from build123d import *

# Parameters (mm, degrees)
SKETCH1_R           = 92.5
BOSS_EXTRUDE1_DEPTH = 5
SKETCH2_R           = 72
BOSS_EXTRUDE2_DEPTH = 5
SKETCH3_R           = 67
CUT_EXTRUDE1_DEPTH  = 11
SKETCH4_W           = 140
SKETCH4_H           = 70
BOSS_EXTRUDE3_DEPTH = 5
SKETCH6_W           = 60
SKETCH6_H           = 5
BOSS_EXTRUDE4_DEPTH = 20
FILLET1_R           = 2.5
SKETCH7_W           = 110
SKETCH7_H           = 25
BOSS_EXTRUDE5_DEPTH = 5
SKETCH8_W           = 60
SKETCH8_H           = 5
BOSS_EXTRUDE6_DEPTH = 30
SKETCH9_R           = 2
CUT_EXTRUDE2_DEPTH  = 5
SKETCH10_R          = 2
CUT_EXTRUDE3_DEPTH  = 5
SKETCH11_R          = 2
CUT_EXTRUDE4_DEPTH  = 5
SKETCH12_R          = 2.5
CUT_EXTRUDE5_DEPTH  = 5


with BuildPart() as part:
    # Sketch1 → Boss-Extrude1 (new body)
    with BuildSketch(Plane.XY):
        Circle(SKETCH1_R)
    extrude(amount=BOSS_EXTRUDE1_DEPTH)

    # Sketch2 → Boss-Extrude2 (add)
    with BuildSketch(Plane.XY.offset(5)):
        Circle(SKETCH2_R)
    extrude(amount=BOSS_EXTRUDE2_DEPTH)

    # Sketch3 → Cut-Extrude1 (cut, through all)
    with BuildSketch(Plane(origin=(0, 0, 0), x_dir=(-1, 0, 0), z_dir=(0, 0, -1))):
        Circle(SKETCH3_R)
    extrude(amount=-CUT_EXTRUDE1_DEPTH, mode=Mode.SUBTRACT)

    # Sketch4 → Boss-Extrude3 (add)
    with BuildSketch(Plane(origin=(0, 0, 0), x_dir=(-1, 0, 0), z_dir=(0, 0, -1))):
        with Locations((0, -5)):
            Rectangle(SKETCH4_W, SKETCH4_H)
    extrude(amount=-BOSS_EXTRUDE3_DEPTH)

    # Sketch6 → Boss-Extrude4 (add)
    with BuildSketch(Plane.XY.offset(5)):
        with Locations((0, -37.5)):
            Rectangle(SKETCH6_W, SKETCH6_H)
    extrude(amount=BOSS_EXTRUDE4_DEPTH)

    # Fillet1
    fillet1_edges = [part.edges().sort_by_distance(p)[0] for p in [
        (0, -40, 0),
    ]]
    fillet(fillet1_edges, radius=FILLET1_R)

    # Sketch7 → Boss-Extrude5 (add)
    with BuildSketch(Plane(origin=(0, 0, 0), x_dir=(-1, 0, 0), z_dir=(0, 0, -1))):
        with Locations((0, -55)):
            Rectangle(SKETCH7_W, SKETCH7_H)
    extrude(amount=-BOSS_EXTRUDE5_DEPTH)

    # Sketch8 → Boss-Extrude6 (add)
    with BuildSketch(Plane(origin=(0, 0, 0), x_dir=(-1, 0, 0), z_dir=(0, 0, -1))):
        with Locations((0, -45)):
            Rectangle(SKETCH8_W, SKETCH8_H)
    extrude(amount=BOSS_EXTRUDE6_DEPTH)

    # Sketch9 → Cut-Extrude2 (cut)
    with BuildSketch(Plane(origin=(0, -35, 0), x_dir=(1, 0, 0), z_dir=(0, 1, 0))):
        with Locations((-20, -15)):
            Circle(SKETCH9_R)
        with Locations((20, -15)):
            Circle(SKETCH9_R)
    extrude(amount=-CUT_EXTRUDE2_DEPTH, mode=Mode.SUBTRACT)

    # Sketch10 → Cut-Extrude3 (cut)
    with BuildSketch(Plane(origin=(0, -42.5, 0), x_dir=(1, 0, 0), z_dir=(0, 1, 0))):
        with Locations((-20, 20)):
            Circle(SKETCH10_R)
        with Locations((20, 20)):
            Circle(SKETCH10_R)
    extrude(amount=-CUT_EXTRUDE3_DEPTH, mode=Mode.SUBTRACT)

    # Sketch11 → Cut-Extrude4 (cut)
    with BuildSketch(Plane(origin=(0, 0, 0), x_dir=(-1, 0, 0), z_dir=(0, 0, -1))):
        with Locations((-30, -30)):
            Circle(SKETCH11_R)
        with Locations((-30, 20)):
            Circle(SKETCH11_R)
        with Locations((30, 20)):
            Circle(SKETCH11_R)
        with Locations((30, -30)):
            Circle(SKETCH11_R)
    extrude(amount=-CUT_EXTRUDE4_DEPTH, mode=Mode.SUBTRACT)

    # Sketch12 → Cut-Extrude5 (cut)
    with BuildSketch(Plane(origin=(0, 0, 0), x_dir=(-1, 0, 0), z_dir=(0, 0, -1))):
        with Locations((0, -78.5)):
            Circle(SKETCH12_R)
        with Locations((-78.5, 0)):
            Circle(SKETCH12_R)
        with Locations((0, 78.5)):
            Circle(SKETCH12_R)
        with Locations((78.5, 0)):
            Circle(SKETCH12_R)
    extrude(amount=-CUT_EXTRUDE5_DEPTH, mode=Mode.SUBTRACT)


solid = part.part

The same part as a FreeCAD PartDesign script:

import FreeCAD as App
import Part
import Sketcher

V = App.Vector
Q = App.Units.Quantity


def edges_at(feature, points):
    """Names of the edges that pass closest to the given points."""
    edges = feature.Shape.Edges
    near = lambda p: min(range(len(edges)), key=lambda i: edges[i].distToShape(Part.Vertex(*p))[0])
    return sorted({f"Edge{near(p) + 1}" for p in points})


def add_polygon(sketch, points):
    """Adds a closed chain of lines whose ends are joined by coincident constraints."""
    first, n = sketch.GeometryCount, len(points)
    for a, b in zip(points, points[1:] + points[:1]):
        sketch.addGeometry(Part.LineSegment(App.Vector(*a, 0), App.Vector(*b, 0)), False)
    for i in range(n):
        sketch.addConstraint(Sketcher.Constraint("Coincident", first + i, 2, first + (i + 1) % n, 1))

doc = App.newDocument("Part")
body = doc.addObject("PartDesign::Body", "Body")

sketch1 = body.newObject("Sketcher::SketchObject", "Sketch")
sketch1.AttachmentSupport = (doc.getObject("XY_Plane"), [""])
sketch1.MapMode = "FlatFace"
sketch1.addGeometry(Part.Circle(V(0, 0, 0), V(0, 0, 1), 92.5), False)
sketch1.addConstraint(Sketcher.Constraint("Coincident", 0, 3, -1, 1))
sketch1.addConstraint(Sketcher.Constraint("Diameter", 0, Q("185 mm")))
pad1 = body.newObject("PartDesign::Pad", "Pad")
pad1.Profile = sketch1
pad1.Length = 5

sketch2 = body.newObject("Sketcher::SketchObject", "Sketch001")
sketch2.AttachmentSupport = (doc.getObject("XY_Plane"), [""])
sketch2.MapMode = "FlatFace"
sketch2.AttachmentOffset = App.Placement(V(0, 0, 5), App.Rotation())
sketch2.addGeometry(Part.Circle(V(0, 0, 0), V(0, 0, 1), 72), False)
sketch2.addConstraint(Sketcher.Constraint("Coincident", 0, 3, -1, 1))
sketch2.addConstraint(Sketcher.Constraint("Diameter", 0, Q("144 mm")))
pad2 = body.newObject("PartDesign::Pad", "Pad001")
pad2.Profile = sketch2
pad2.Length = 5

sketch3 = body.newObject("Sketcher::SketchObject", "Sketch002")
sketch3.AttachmentSupport = (doc.getObject("XY_Plane"), [""])
sketch3.MapMode = "FlatFace"
sketch3.addGeometry(Part.Circle(V(0, 0, 0), V(0, 0, 1), 67), False)
sketch3.addConstraint(Sketcher.Constraint("Coincident", 0, 3, -1, 1))
sketch3.addConstraint(Sketcher.Constraint("Diameter", 0, Q("134 mm")))
pocket1 = body.newObject("PartDesign::Pocket", "Pocket")
pocket1.Profile = sketch3
pocket1.Type = "ThroughAll"
pocket1.Reversed = True

sketch4 = body.newObject("Sketcher::SketchObject", "Sketch003")
sketch4.AttachmentSupport = (doc.getObject("XY_Plane"), [""])
sketch4.MapMode = "FlatFace"
add_polygon(sketch4, [(70, 30), (70, -40), (-70, -40), (-70, 30)])
sketch4.addConstraint(Sketcher.Constraint("Vertical", 0))
sketch4.addConstraint(Sketcher.Constraint("Horizontal", 1))
sketch4.addConstraint(Sketcher.Constraint("Vertical", 2))
sketch4.addConstraint(Sketcher.Constraint("Horizontal", 3))
sketch4.addConstraint(Sketcher.Constraint("DistanceX", 1, 2, 1, 1, Q("140 mm")))
sketch4.addConstraint(Sketcher.Constraint("DistanceY", 0, 2, 0, 1, Q("70 mm")))
sketch4.addConstraint(Sketcher.Constraint("DistanceX", -1, 1, 0, 2, Q("70 mm")))
sketch4.addConstraint(Sketcher.Constraint("DistanceY", 0, 2, -1, 1, Q("40 mm")))
pad3 = body.newObject("PartDesign::Pad", "Pad002")
pad3.Profile = sketch4
pad3.Length = 5

sketch5 = body.newObject("Sketcher::SketchObject", "Sketch004")
sketch5.AttachmentSupport = (doc.getObject("XY_Plane"), [""])
sketch5.MapMode = "FlatFace"
sketch5.AttachmentOffset = App.Placement(V(0, 0, 5), App.Rotation())
add_polygon(sketch5, [(-30, -35), (-30, -40), (30, -40), (30, -35)])
sketch5.addConstraint(Sketcher.Constraint("Vertical", 0))
sketch5.addConstraint(Sketcher.Constraint("Horizontal", 1))
sketch5.addConstraint(Sketcher.Constraint("Vertical", 2))
sketch5.addConstraint(Sketcher.Constraint("Horizontal", 3))
sketch5.addConstraint(Sketcher.Constraint("DistanceX", 1, 1, 1, 2, Q("60 mm")))
sketch5.addConstraint(Sketcher.Constraint("DistanceY", 0, 2, 0, 1, Q("5 mm")))
sketch5.addConstraint(Sketcher.Constraint("DistanceX", 0, 2, -1, 1, Q("30 mm")))
sketch5.addConstraint(Sketcher.Constraint("DistanceY", 0, 2, -1, 1, Q("40 mm")))
pad4 = body.newObject("PartDesign::Pad", "Pad003")
pad4.Profile = sketch5
pad4.Length = 20
doc.recompute()

fillet = body.newObject("PartDesign::Fillet", "Fillet")
fillet.Base = (pad4, edges_at(pad4, [(0, -40, 0)]))
fillet.Radius = 2.5

sketch6 = body.newObject("Sketcher::SketchObject", "Sketch005")
sketch6.AttachmentSupport = (doc.getObject("XY_Plane"), [""])
sketch6.MapMode = "FlatFace"
add_polygon(sketch6, [(55, -42.5), (55, -67.5), (-55, -67.5), (-55, -42.5)])
sketch6.addConstraint(Sketcher.Constraint("Vertical", 0))
sketch6.addConstraint(Sketcher.Constraint("Horizontal", 1))
sketch6.addConstraint(Sketcher.Constraint("Vertical", 2))
sketch6.addConstraint(Sketcher.Constraint("Horizontal", 3))
sketch6.addConstraint(Sketcher.Constraint("DistanceX", 1, 2, 1, 1, Q("110 mm")))
sketch6.addConstraint(Sketcher.Constraint("DistanceY", 0, 2, 0, 1, Q("25 mm")))
sketch6.addConstraint(Sketcher.Constraint("DistanceX", -1, 1, 0, 2, Q("55 mm")))
sketch6.addConstraint(Sketcher.Constraint("DistanceY", 0, 2, -1, 1, Q("67.5 mm")))
pad5 = body.newObject("PartDesign::Pad", "Pad004")
pad5.Profile = sketch6
pad5.Length = 5

sketch7 = body.newObject("Sketcher::SketchObject", "Sketch006")
sketch7.AttachmentSupport = (doc.getObject("XY_Plane"), [""])
sketch7.MapMode = "FlatFace"
add_polygon(sketch7, [(30, -42.5), (30, -47.5), (-30, -47.5), (-30, -42.5)])
sketch7.addConstraint(Sketcher.Constraint("Vertical", 0))
sketch7.addConstraint(Sketcher.Constraint("Horizontal", 1))
sketch7.addConstraint(Sketcher.Constraint("Vertical", 2))
sketch7.addConstraint(Sketcher.Constraint("Horizontal", 3))
sketch7.addConstraint(Sketcher.Constraint("DistanceX", 1, 2, 1, 1, Q("60 mm")))
sketch7.addConstraint(Sketcher.Constraint("DistanceY", 0, 2, 0, 1, Q("5 mm")))
sketch7.addConstraint(Sketcher.Constraint("DistanceX", -1, 1, 0, 2, Q("30 mm")))
sketch7.addConstraint(Sketcher.Constraint("DistanceY", 0, 2, -1, 1, Q("47.5 mm")))
pad6 = body.newObject("PartDesign::Pad", "Pad005")
pad6.Profile = sketch7
pad6.Length = 30
pad6.Reversed = True

sketch8 = body.newObject("Sketcher::SketchObject", "Sketch007")
sketch8.AttachmentSupport = (doc.getObject("XZ_Plane"), [""])
sketch8.MapMode = "FlatFace"
sketch8.AttachmentOffset = App.Placement(V(0, 0, 35), App.Rotation())
sketch8.addGeometry(Part.Circle(V(-20, 15, 0), V(0, 0, 1), 2), False)
sketch8.addGeometry(Part.Circle(V(20, 15, 0), V(0, 0, 1), 2), False)
sketch8.addConstraint(Sketcher.Constraint("Equal", 0, 1))
sketch8.addConstraint(Sketcher.Constraint("Symmetric", 0, 3, 1, 3, -2))
sketch8.addConstraint(Sketcher.Constraint("Diameter", 0, Q("4 mm")))
sketch8.addConstraint(Sketcher.Constraint("DistanceX", 0, 3, -1, 1, Q("20 mm")))
sketch8.addConstraint(Sketcher.Constraint("DistanceY", -1, 1, 0, 3, Q("15 mm")))
pocket2 = body.newObject("PartDesign::Pocket", "Pocket001")
pocket2.Profile = sketch8
pocket2.Length = 5
pocket2.Reversed = True

sketch9 = body.newObject("Sketcher::SketchObject", "Sketch008")
sketch9.AttachmentSupport = (doc.getObject("XZ_Plane"), [""])
sketch9.MapMode = "FlatFace"
sketch9.AttachmentOffset = App.Placement(V(0, 0, 42.5), App.Rotation())
sketch9.addGeometry(Part.Circle(V(-20, -20, 0), V(0, 0, 1), 2), False)
sketch9.addGeometry(Part.Circle(V(20, -20, 0), V(0, 0, 1), 2), False)
sketch9.addConstraint(Sketcher.Constraint("Equal", 0, 1))
sketch9.addConstraint(Sketcher.Constraint("Symmetric", 0, 3, 1, 3, -2))
sketch9.addConstraint(Sketcher.Constraint("Diameter", 0, Q("4 mm")))
sketch9.addConstraint(Sketcher.Constraint("DistanceX", 0, 3, -1, 1, Q("20 mm")))
sketch9.addConstraint(Sketcher.Constraint("DistanceY", 0, 3, -1, 1, Q("20 mm")))
pocket3 = body.newObject("PartDesign::Pocket", "Pocket002")
pocket3.Profile = sketch9
pocket3.Length = 5
pocket3.Reversed = True

sketch10 = body.newObject("Sketcher::SketchObject", "Sketch009")
sketch10.AttachmentSupport = (doc.getObject("XY_Plane"), [""])
sketch10.MapMode = "FlatFace"
sketch10.addGeometry(Part.Circle(V(30, -30, 0), V(0, 0, 1), 2), False)
sketch10.addGeometry(Part.Circle(V(30, 20, 0), V(0, 0, 1), 2), False)
sketch10.addGeometry(Part.Circle(V(-30, 20, 0), V(0, 0, 1), 2), False)
sketch10.addGeometry(Part.Circle(V(-30, -30, 0), V(0, 0, 1), 2), False)
sketch10.addConstraint(Sketcher.Constraint("Equal", 0, 1))
sketch10.addConstraint(Sketcher.Constraint("Equal", 1, 2))
sketch10.addConstraint(Sketcher.Constraint("Equal", 2, 3))
sketch10.addConstraint(Sketcher.Constraint("Symmetric", 1, 3, 2, 3, -2))
sketch10.addConstraint(Sketcher.Constraint("Symmetric", 0, 3, 3, 3, -2))
sketch10.addConstraint(Sketcher.Constraint("Vertical", 0, 3, 1, 3))
sketch10.addConstraint(Sketcher.Constraint("Diameter", 0, Q("4 mm")))
sketch10.addConstraint(Sketcher.Constraint("DistanceX", -1, 1, 0, 3, Q("30 mm")))
sketch10.addConstraint(Sketcher.Constraint("DistanceY", 0, 3, -1, 1, Q("30 mm")))
sketch10.addConstraint(Sketcher.Constraint("DistanceY", -1, 1, 1, 3, Q("20 mm")))
pocket4 = body.newObject("PartDesign::Pocket", "Pocket003")
pocket4.Profile = sketch10
pocket4.Length = 5
pocket4.Reversed = True

sketch11 = body.newObject("Sketcher::SketchObject", "Sketch010")
sketch11.AttachmentSupport = (doc.getObject("XY_Plane"), [""])
sketch11.MapMode = "FlatFace"
sketch11.addGeometry(Part.Circle(V(0, -78.5, 0), V(0, 0, 1), 2.5), False)
sketch11.addGeometry(Part.Circle(V(78.5, 0, 0), V(0, 0, 1), 2.5), False)
sketch11.addGeometry(Part.Circle(V(0, 78.5, 0), V(0, 0, 1), 2.5), False)
sketch11.addGeometry(Part.Circle(V(-78.5, 0, 0), V(0, 0, 1), 2.5), False)
sketch11.addConstraint(Sketcher.Constraint("Equal", 0, 1))
sketch11.addConstraint(Sketcher.Constraint("Equal", 1, 2))
sketch11.addConstraint(Sketcher.Constraint("Equal", 2, 3))
sketch11.addConstraint(Sketcher.Constraint("Symmetric", 0, 3, 2, 3, -1, 1))
sketch11.addConstraint(Sketcher.Constraint("Symmetric", 1, 3, 3, 3, -1, 1))
sketch11.addConstraint(Sketcher.Constraint("PointOnObject", 0, 3, -2))
sketch11.addConstraint(Sketcher.Constraint("PointOnObject", 1, 3, -1))
sketch11.addConstraint(Sketcher.Constraint("Diameter", 0, Q("5 mm")))
sketch11.addConstraint(Sketcher.Constraint("DistanceY", 0, 3, 2, 3, Q("157 mm")))
sketch11.addConstraint(Sketcher.Constraint("DistanceX", 3, 3, 1, 3, Q("157 mm")))
pocket5 = body.newObject("PartDesign::Pocket", "Pocket004")
pocket5.Profile = sketch11
pocket5.Length = 5
pocket5.Reversed = True

doc.recompute()
